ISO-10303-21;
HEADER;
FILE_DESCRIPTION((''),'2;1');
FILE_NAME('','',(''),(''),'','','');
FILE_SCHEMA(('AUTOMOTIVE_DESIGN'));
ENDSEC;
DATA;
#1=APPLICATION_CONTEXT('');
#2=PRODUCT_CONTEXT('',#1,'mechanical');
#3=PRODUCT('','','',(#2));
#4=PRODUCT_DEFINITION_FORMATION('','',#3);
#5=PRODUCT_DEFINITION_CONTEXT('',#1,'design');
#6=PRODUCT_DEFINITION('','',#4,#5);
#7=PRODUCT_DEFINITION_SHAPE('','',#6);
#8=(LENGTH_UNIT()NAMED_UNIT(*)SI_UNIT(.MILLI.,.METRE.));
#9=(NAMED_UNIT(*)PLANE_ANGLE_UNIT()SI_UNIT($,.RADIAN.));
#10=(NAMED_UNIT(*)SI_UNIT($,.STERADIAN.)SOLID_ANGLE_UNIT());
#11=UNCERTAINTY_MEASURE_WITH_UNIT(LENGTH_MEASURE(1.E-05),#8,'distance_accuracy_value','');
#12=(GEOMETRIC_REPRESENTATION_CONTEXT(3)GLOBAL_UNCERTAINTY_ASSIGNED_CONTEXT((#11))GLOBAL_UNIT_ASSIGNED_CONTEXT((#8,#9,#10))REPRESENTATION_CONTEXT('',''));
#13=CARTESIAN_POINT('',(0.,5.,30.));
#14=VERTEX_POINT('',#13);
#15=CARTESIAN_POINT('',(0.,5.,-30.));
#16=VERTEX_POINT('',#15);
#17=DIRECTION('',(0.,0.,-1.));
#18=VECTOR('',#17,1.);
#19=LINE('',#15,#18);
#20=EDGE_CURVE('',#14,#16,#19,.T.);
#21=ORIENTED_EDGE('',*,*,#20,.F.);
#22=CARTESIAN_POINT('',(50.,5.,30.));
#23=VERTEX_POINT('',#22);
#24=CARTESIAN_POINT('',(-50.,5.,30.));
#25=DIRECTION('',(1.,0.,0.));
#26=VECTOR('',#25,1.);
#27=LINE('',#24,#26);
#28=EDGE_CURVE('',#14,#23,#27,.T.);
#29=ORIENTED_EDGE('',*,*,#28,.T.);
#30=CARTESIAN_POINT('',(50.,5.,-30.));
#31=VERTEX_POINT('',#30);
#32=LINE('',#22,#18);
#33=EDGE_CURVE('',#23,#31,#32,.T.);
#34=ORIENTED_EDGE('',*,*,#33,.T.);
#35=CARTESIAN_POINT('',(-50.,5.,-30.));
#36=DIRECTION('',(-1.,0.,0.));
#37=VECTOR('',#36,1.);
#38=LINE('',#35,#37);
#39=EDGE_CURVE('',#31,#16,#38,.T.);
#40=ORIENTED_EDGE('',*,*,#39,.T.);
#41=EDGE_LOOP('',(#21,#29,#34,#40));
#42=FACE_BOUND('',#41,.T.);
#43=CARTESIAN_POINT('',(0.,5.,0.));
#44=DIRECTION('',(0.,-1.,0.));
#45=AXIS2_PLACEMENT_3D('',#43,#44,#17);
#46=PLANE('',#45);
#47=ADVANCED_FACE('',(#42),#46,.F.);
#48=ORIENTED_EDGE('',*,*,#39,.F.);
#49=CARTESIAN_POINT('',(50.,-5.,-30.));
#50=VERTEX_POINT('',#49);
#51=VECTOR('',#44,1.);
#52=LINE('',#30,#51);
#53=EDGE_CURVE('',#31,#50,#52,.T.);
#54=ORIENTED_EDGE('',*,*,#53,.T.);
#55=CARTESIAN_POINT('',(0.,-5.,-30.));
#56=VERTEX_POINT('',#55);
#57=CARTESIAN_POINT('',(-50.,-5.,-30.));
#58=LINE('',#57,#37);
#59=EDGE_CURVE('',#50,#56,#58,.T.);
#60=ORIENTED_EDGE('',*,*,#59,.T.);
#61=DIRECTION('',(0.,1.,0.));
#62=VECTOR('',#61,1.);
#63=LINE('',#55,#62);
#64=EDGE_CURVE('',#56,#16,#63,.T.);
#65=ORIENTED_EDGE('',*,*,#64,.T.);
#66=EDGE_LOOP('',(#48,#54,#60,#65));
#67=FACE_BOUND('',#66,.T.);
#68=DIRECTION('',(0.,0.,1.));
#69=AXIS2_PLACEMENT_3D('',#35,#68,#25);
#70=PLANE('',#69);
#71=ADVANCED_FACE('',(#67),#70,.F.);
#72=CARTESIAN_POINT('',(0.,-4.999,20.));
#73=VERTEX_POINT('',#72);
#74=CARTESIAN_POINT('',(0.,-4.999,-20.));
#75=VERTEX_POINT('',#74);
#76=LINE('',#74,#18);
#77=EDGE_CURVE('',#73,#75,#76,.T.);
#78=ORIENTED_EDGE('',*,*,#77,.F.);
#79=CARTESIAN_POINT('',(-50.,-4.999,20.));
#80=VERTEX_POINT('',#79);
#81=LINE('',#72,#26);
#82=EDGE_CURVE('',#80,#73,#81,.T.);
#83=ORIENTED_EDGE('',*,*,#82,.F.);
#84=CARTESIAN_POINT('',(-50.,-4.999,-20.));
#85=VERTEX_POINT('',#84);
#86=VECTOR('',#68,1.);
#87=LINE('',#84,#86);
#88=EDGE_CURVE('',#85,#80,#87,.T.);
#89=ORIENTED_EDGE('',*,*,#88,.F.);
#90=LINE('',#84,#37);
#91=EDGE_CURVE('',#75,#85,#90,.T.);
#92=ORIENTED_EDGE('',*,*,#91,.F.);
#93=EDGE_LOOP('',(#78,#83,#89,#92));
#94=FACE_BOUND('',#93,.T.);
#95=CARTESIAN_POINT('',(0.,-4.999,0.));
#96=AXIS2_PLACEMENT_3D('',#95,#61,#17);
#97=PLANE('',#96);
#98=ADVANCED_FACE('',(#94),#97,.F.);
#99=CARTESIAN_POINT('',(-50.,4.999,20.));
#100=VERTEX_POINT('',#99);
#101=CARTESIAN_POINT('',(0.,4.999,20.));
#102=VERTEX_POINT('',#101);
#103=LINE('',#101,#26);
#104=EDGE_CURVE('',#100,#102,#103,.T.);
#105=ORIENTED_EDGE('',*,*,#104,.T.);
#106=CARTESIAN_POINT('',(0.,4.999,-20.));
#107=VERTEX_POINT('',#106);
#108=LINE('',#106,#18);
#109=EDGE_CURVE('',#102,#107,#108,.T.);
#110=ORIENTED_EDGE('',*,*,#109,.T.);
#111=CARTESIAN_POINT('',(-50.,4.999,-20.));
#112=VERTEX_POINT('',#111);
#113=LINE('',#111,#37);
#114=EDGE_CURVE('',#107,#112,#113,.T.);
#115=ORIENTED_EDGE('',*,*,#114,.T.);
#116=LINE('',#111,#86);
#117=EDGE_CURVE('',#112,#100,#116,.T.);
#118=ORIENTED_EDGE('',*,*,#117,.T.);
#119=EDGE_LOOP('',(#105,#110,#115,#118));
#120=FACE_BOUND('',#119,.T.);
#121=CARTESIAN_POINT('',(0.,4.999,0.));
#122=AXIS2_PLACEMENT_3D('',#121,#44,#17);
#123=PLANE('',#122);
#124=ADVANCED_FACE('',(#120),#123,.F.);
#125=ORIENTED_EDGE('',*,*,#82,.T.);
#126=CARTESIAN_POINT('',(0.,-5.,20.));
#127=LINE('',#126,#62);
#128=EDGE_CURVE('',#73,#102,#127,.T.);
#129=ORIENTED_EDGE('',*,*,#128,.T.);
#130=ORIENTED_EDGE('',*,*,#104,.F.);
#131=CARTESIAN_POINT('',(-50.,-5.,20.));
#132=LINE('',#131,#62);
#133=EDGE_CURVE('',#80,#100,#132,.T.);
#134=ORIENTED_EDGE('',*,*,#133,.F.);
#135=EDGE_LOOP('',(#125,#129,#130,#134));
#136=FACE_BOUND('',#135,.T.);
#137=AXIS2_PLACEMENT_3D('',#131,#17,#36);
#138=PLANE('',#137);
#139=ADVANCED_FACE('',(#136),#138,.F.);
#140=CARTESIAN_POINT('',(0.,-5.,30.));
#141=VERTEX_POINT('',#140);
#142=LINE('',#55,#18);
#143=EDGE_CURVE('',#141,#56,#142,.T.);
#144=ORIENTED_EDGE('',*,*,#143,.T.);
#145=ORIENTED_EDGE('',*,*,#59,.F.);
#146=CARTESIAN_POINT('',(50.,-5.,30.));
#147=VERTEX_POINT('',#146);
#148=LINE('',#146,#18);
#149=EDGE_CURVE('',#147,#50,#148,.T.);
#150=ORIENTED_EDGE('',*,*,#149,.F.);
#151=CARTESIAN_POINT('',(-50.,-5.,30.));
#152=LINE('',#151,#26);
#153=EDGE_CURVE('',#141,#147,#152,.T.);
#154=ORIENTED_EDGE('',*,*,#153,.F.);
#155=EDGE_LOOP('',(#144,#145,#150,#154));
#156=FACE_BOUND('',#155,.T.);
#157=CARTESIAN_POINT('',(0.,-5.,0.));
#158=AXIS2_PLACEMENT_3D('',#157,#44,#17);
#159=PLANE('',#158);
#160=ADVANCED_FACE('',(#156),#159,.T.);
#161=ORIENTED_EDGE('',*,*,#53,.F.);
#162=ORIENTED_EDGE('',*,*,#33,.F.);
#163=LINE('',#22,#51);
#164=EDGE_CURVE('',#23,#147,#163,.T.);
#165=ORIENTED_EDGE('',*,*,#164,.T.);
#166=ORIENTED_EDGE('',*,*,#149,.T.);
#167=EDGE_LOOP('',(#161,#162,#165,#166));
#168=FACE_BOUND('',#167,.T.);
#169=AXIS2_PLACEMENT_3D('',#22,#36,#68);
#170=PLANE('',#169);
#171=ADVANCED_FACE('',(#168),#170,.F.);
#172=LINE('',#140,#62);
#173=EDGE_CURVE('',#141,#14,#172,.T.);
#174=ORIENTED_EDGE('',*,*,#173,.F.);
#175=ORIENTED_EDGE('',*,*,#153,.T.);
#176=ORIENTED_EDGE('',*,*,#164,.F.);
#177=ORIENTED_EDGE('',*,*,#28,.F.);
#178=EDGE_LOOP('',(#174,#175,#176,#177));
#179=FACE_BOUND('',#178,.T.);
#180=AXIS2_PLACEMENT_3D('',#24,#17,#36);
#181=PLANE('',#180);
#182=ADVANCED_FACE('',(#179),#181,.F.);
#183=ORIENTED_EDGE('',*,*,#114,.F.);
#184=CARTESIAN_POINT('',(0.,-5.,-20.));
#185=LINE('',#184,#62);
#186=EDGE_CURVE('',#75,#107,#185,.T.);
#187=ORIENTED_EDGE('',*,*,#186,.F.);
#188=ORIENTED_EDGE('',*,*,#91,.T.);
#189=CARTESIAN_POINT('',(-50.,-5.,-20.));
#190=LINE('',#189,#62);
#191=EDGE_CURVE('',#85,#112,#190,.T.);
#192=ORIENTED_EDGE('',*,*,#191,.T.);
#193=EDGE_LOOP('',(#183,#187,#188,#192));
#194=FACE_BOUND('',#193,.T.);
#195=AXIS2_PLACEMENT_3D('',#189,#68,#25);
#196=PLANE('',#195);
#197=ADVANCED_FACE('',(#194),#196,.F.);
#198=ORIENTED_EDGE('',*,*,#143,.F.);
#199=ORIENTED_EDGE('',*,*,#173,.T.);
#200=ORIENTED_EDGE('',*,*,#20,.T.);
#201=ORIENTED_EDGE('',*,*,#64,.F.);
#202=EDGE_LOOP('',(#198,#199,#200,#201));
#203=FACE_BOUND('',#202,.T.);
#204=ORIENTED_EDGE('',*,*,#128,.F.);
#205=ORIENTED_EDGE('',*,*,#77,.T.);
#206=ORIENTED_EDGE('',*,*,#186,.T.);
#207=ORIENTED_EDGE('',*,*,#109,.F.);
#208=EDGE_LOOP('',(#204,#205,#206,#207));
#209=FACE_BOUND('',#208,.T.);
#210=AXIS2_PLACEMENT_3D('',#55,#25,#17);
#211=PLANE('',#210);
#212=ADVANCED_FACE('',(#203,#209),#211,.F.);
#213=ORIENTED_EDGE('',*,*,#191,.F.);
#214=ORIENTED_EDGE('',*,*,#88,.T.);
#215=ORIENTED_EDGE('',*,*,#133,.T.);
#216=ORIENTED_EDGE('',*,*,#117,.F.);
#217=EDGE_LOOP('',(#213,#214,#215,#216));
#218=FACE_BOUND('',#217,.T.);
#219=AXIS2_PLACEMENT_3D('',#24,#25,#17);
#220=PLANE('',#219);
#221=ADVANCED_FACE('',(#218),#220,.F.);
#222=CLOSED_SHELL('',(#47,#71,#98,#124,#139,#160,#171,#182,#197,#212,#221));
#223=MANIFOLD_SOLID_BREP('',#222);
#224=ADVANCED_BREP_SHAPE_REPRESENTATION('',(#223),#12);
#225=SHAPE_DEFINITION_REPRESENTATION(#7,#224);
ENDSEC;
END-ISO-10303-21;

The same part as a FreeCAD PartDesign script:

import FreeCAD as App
import Part
import Sketcher


def add_polygon(sketch, points):
    """Adds a closed chain of lines whose ends are joined by coincident constraints."""
    first, n = sketch.GeometryCount, len(points)
    for a, b in zip(points, points[1:] + points[:1]):
        sketch.addGeometry(Part.LineSegment(App.Vector(*a, 0), App.Vector(*b, 0)), False)
    for i in range(n):
        sketch.addConstraint(Sketcher.Constraint("Coincident", first + i, 2, first + (i + 1) % n, 1))

doc = App.newDocument("Part")
body = doc.addObject("PartDesign::Body", "Body")

# Sketch on XZ plane
sketch1 = body.newObject("Sketcher::SketchObject", "Sketch")
sketch1.AttachmentSupport = (doc.getObject("XZ_Plane"), [""])
sketch1.MapMode = "FlatFace"
add_polygon(sketch1, [(-50, -30), (-50, 30), (50, 30), (50, -30)])  # lines 0-3
sketch1.addConstraint([
    Sketcher.Constraint("Vertical", 0),
    Sketcher.Constraint("Horizontal", 1),
    Sketcher.Constraint("Vertical", 2),
    Sketcher.Constraint("Horizontal", 3),
    Sketcher.Constraint("Symmetric", 0, 2, 2, 2, -1, 1),
    Sketcher.Constraint("DistanceX", 1, 1, 1, 2, 100.0),
    Sketcher.Constraint("DistanceY", 0, 1, 0, 2, 60.0),
])
pad1 = body.newObject("PartDesign::Pad", "Pad")
pad1.Profile = sketch1
pad1.Length = 10
pad1.Midplane = True

# Sketch on XZ plane
sketch2 = body.newObject("Sketcher::SketchObject", "Sketch001")
sketch2.AttachmentSupport = (doc.getObject("XZ_Plane"), [""])
sketch2.MapMode = "FlatFace"
sketch2.AttachmentOffset = App.Placement(App.Vector(0, 0, -5), App.Rotation())
add_polygon(sketch2, [(-50, -30), (-50, -20), (0, -20), (0, -30)])  # lines 0-3
add_polygon(sketch2, [(-50, 20), (-50, 30), (0, 30), (0, 20)])  # lines 4-7
sketch2.addConstraint([
    Sketcher.Constraint("Vertical", 0),
    Sketcher.Constraint("Horizontal", 1),
    Sketcher.Constraint("Vertical", 2),
    Sketcher.Constraint("Horizontal", 3),
    Sketcher.Constraint("Vertical", 4),
    Sketcher.Constraint("Horizontal", 5),
    Sketcher.Constraint("Vertical", 6),
    Sketcher.Constraint("Horizontal", 7),
    Sketcher.Constraint("Symmetric", 2, 2, 5, 2, -1, 1),
    Sketcher.Constraint("Symmetric", 1, 2, 6, 2, -1),
    Sketcher.Constraint("Vertical", 3, 2, 4, 2),
    Sketcher.Constraint("DistanceX", 1, 1, 1, 2, 50.0),
    Sketcher.Constraint("DistanceY", 0, 1, 0, 2, 10.0),
    Sketcher.Constraint("DistanceY", 0, 2, -1, 1, 20.0),
])
pocket1 = body.newObject("PartDesign::Pocket", "Pocket")
pocket1.Profile = sketch2
pocket1.Type = "ThroughAll"
pocket1.Reversed = True

# Sketch on XZ plane
sketch3 = body.newObject("Sketcher::SketchObject", "Sketch002")
sketch3.AttachmentSupport = (doc.getObject("XZ_Plane"), [""])
sketch3.MapMode = "FlatFace"
sketch3.AttachmentOffset = App.Placement(App.Vector(0, 0, -5), App.Rotation())
add_polygon(sketch3, [(-50, -20), (-50, 20), (0, 20), (0, -20)])  # lines 0-3
sketch3.addConstraint([
    Sketcher.Constraint("Vertical", 0),
    Sketcher.Constraint("Horizontal", 1),
    Sketcher.Constraint("Vertical", 2),
    Sketcher.Constraint("Horizontal", 3),
    Sketcher.Constraint("Symmetric", 1, 2, 2, 2, -1, 1),
    Sketcher.Constraint("DistanceX", 1, 1, 1, 2, 50.0),
    Sketcher.Constraint("DistanceY", 0, 1, 0, 2, 40.0),
])
pocket2 = body.newObject("PartDesign::Pocket", "Pocket001")
pocket2.Profile = sketch3
pocket2.Length = 0.001
pocket2.Reversed = True
doc.recompute()

mirrored = body.newObject("PartDesign::Mirrored", "Mirrored")
mirrored.Originals = [pocket2]
mirrored.MirrorPlane = (doc.getObject("XZ_Plane"), [""])
body.Tip = mirrored

doc.recompute()
